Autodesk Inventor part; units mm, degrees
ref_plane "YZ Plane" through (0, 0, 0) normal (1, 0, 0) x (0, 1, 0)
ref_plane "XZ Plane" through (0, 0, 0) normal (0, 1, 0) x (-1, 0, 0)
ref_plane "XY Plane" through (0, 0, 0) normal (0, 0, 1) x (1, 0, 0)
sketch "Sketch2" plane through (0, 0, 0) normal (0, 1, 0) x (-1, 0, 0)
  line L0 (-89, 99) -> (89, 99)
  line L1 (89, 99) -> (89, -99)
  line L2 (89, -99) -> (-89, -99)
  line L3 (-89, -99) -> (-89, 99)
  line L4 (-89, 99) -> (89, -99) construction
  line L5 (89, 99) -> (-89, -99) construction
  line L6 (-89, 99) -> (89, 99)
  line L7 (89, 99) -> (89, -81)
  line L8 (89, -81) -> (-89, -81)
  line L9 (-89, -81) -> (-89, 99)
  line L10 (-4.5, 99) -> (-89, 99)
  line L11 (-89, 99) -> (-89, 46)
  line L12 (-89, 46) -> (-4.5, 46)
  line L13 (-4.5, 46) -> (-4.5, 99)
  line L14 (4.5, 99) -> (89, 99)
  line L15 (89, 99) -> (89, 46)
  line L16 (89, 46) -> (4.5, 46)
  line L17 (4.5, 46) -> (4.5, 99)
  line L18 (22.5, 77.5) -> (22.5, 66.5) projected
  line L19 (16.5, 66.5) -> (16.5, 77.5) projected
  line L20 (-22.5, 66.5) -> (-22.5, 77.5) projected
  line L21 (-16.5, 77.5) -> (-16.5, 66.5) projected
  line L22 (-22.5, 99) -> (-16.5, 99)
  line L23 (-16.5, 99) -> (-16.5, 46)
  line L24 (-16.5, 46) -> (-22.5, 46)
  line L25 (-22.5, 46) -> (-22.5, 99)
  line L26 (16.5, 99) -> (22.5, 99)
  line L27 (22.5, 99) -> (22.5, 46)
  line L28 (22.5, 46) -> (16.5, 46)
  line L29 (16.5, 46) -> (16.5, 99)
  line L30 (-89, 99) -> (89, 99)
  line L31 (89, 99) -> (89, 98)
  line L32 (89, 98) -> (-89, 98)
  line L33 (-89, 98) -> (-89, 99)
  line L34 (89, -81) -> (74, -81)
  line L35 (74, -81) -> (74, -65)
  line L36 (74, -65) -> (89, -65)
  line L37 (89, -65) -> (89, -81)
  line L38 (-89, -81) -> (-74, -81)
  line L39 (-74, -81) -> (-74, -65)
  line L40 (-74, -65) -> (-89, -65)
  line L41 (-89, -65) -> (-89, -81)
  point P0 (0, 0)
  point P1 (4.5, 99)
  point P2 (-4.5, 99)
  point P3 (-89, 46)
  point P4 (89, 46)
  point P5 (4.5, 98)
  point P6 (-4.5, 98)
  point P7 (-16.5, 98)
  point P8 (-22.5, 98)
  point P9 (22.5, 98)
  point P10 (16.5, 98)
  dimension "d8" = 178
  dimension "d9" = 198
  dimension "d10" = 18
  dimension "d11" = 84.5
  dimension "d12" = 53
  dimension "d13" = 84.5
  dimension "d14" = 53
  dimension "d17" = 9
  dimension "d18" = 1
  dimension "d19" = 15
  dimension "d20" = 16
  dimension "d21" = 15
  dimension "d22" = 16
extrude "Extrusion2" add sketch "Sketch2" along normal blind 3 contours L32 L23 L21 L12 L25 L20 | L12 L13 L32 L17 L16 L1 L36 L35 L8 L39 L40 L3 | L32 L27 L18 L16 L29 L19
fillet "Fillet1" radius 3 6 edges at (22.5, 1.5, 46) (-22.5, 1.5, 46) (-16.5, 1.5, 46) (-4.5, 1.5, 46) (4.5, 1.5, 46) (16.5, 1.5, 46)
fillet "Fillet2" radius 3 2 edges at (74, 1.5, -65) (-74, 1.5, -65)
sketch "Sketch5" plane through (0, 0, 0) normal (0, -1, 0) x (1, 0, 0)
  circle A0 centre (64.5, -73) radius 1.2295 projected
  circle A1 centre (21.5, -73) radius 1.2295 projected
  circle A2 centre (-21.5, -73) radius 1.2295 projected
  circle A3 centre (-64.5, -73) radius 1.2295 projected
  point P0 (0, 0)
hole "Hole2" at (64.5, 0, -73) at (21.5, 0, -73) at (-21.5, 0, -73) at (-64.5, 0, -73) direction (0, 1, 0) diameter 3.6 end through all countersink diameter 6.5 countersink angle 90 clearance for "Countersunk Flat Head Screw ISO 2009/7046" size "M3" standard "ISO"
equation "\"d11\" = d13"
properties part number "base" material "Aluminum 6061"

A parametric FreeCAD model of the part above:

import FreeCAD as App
import Part
import Sketcher

V = App.Vector


def edges_at(feature, points):
    """Names of the edges that pass closest to the given points."""
    edges = feature.Shape.Edges
    near = lambda p: min(range(len(edges)), key=lambda i: edges[i].distToShape(Part.Vertex(*p))[0])
    return sorted({f"Edge{near(p) + 1}" for p in points})


def add_polygon(sketch, points):
    """Adds a closed chain of lines whose ends are joined by coincident constraints."""
    first, n = sketch.GeometryCount, len(points)
    for a, b in zip(points, points[1:] + points[:1]):
        sketch.addGeometry(Part.LineSegment(App.Vector(*a, 0), App.Vector(*b, 0)), False)
    for i in range(n):
        sketch.addConstraint(Sketcher.Constraint("Coincident", first + i, 2, first + (i + 1) % n, 1))

doc = App.newDocument("Part")
body = doc.addObject("PartDesign::Body", "Body")

# Sketch on XZ plane
sketch1 = body.newObject("Sketcher::SketchObject", "Sketch")
sketch1.AttachmentSupport = (doc.getObject("XZ_Plane"), [""])
sketch1.MapMode = "FlatFace"
add_polygon(sketch1, [(16.5, 98), (22.5, 98), (22.5, 46), (89, 46), (89, -65), (74, -65), (74, -81), (-74, -81), (-74, -65), (-89, -65), (-89, 46), (-22.5, 46), (-22.5, 98), (-16.5, 98), (-16.5, 46), (-4.5, 46), (-4.5, 98), (4.5, 98), (4.5, 46), (16.5, 46)])  # lines 0-19
sketch1.addConstraint([
    Sketcher.Constraint("Horizontal", 0),
    Sketcher.Constraint("Vertical", 1),
    Sketcher.Constraint("Horizontal", 2),
    Sketcher.Constraint("Vertical", 3),
    Sketcher.Constraint("Horizontal", 4),
    Sketcher.Constraint("Vertical", 5),
    Sketcher.Constraint("Horizontal", 6),
    Sketcher.Constraint("Vertical", 7),
    Sketcher.Constraint("Horizontal", 8),
    Sketcher.Constraint("Vertical", 9),
    Sketcher.Constraint("Horizontal", 10),
    Sketcher.Constraint("Vertical", 11),
    Sketcher.Constraint("Horizontal", 12),
    Sketcher.Constraint("Vertical", 13),
    Sketcher.Constraint("Horizontal", 14),
    Sketcher.Constraint("Vertical", 15),
    Sketcher.Constraint("Horizontal", 16),
    Sketcher.Constraint("Vertical", 17),
    Sketcher.Constraint("Horizontal", 18),
    Sketcher.Constraint("Vertical", 19),
    Sketcher.Constraint("Symmetric", 4, 2, 7, 2, -2),
    Sketcher.Constraint("Symmetric", 2, 2, 9, 2, -2),
    Sketcher.Constraint("Symmetric", 0, 2, 11, 2, -2),
    Sketcher.Constraint("Symmetric", 14, 2, 17, 2, -2),
    Sketcher.Constraint("Horizontal", 10, 2, 13, 2),
    Sketcher.Constraint("Horizontal", 12, 2, 15, 2),
    Sketcher.Constraint("Equal", 0, 12),
    Sketcher.Constraint("DistanceX", 4, 2, 4, 1, 15.0),
    Sketcher.Constraint("DistanceX", 16, 1, 16, 2, 9.0),
    Sketcher.Constraint("DistanceY", 5, 2, 5, 1, 16.0),
    Sketcher.Constraint("DistanceX", 10, 2, 14, 2, 18.0),
    Sketcher.Constraint("DistanceX", 0, 1, 0, 2, 6.0),
    Sketcher.Constraint("DistanceX", 6, 2, 6, 1, 148.0),
    Sketcher.Constraint("DistanceY", 1, 2, 1, 1, 52.0),
    Sketcher.Constraint("DistanceY", 3, 2, 3, 1, 111.0),
    Sketcher.Constraint("DistanceY", -1, 1, 0, 2, 98.0),
])
pad1 = body.newObject("PartDesign::Pad", "Pad")
pad1.Profile = sketch1
pad1.Length = 3
pad1.Reversed = True
doc.recompute()

fillet = body.newObject("PartDesign::Fillet", "Fillet")
fillet.Base = (pad1, edges_at(pad1, [
    (22.5, 1.5, 46),
    (-22.5, 1.5, 46),
    (-16.5, 1.5, 46),
    (-4.5, 1.5, 46),
    (4.5, 1.5, 46),
    (16.5, 1.5, 46),
]))
fillet.Radius = 3
doc.recompute()

fillet2 = body.newObject("PartDesign::Fillet", "Fillet001")
fillet2.Base = (fillet, edges_at(fillet, [(74, 1.5, -65), (-74, 1.5, -65)]))
fillet2.Radius = 3

# Sketch on XZ plane
sketch2 = body.newObject("Sketcher::SketchObject", "Sketch001")
sketch2.AttachmentSupport = (doc.getObject("XZ_Plane"), [""])
sketch2.MapMode = "FlatFace"
sketch2.addGeometry([
    Part.Circle(V(64.5, -73, 0), V(0, 0, 1), 1.8),
    Part.Circle(V(21.5, -73, 0), V(0, 0, 1), 1.8),
    Part.Circle(V(-21.5, -73, 0), V(0, 0, 1), 1.8),
    Part.Circle(V(-64.5, -73, 0), V(0, 0, 1), 1.8),
], False)
sketch2.addConstraint([
    Sketcher.Constraint("Equal", 0, 1),
    Sketcher.Constraint("Equal", 1, 2),
    Sketcher.Constraint("Equal", 2, 3),
    Sketcher.Constraint("Symmetric", 1, 3, 2, 3, -2),
    Sketcher.Constraint("Symmetric", 0, 3, 3, 3, -2),
    Sketcher.Constraint("Horizontal", 0, 3, 1, 3),
    Sketcher.Constraint("Diameter", 0, 3.6),
    Sketcher.Constraint("DistanceY", 0, 3, -1, 1, 73.0),
    Sketcher.Constraint("DistanceX", 1, 3, 0, 3, 43.0),
    Sketcher.Constraint("DistanceX", 2, 3, 1, 3, 43.0),
])
doc.recompute()
hole = body.newObject("PartDesign::Hole", "Hole")
hole.Profile = sketch2
hole.ThreadType = "None"
hole.Diameter = 3.6
hole.DepthType = "ThroughAll"
hole.HoleCutType = "Countersink"
hole.HoleCutDiameter = 6.5
hole.HoleCutCountersinkAngle = 90

doc.recompute()
